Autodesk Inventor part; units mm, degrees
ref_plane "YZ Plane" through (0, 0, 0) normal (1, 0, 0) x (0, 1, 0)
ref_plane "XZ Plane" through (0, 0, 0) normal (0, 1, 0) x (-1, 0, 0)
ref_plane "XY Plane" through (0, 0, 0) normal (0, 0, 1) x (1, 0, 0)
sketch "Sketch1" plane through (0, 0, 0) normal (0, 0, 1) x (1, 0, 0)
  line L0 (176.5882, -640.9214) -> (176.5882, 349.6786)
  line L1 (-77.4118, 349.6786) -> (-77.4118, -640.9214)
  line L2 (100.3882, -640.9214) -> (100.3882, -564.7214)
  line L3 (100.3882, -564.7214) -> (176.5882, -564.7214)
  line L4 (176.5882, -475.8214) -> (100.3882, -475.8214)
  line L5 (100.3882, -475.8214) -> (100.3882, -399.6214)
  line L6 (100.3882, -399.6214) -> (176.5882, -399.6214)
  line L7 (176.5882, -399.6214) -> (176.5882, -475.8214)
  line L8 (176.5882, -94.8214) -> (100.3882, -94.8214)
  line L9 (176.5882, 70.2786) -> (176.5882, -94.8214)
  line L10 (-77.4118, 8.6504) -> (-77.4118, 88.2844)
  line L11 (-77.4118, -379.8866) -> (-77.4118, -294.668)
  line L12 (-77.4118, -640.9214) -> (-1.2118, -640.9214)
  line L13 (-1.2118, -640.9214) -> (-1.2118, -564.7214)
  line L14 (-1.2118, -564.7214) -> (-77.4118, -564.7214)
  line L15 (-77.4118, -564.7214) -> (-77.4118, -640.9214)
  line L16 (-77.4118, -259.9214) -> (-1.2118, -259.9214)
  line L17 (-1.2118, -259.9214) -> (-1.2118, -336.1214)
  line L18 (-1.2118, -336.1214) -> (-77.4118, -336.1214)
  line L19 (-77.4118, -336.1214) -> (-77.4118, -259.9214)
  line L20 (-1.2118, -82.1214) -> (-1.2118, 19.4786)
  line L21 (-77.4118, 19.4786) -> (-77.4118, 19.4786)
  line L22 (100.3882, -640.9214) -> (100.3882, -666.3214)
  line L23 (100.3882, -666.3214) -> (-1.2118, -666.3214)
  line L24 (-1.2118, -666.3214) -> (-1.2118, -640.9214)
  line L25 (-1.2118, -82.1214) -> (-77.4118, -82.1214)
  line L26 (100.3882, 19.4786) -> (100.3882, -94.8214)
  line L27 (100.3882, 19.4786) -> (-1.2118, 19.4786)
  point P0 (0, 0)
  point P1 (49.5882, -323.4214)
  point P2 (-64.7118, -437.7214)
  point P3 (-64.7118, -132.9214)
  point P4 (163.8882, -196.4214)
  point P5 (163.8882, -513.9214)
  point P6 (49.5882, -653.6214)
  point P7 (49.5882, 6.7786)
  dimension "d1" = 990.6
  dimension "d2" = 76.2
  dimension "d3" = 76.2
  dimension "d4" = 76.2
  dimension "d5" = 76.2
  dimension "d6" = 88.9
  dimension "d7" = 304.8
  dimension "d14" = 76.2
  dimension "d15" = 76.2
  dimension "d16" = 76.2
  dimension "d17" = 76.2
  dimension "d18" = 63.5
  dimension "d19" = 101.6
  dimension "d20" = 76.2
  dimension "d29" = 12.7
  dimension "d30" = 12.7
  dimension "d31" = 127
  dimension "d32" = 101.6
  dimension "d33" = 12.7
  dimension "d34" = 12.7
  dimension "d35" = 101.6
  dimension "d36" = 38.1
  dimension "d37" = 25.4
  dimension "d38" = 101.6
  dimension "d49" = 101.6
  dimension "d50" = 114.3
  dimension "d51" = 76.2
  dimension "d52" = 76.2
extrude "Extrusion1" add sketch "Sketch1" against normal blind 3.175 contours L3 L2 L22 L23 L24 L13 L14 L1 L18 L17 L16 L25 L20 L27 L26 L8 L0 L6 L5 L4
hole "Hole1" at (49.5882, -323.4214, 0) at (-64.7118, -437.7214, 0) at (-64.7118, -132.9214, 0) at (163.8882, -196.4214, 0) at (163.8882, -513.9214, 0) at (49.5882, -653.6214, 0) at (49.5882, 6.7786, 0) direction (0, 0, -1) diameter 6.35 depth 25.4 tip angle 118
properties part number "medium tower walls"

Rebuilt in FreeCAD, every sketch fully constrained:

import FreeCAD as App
import Part
import Sketcher
from FreeCAD import Vector
Q = App.Units.Quantity


def add_polygon(sketch, points):
    """Adds a closed chain of lines whose ends are joined by coincident constraints."""
    first, n = sketch.GeometryCount, len(points)
    for a, b in zip(points, points[1:] + points[:1]):
        sketch.addGeometry(Part.LineSegment(App.Vector(*a, 0), App.Vector(*b, 0)), False)
    for i in range(n):
        sketch.addConstraint(Sketcher.Constraint("Coincident", first + i, 2, first + (i + 1) % n, 1))

doc = App.newDocument("Part")
body = doc.addObject("PartDesign::Body", "Body")

sketch1 = doc.addObject("Sketcher::SketchObject", "Sketch")
body.addObject(sketch1)
sketch1.AttachmentSupport = (doc.XY_Plane, [""])
sketch1.MapMode = "FlatFace"
add_polygon(sketch1, [(100, -565), (177, -565), (177, -476), (100, -476), (100, -400), (177, -400), (177, -95), (100, -95), (100, 19), (-1, 19), (-1, -82), (-77, -82), (-77, -260), (-1, -260), (-1, -336), (-77, -336), (-77, -565), (-1, -565), (-1, -666), (100, -666)])
sketch1.addConstraint([
    Sketcher.Constraint("Horizontal", 0),
    Sketcher.Constraint("Vertical", 1),
    Sketcher.Constraint("Horizontal", 2),
    Sketcher.Constraint("Vertical", 3),
    Sketcher.Constraint("Horizontal", 4),
    Sketcher.Constraint("Vertical", 5),
    Sketcher.Constraint("Horizontal", 6),
    Sketcher.Constraint("Vertical", 7),
    Sketcher.Constraint("Horizontal", 8),
    Sketcher.Constraint("Vertical", 9),
    Sketcher.Constraint("Horizontal", 10),
    Sketcher.Constraint("Vertical", 11),
    Sketcher.Constraint("Horizontal", 12),
    Sketcher.Constraint("Vertical", 13),
    Sketcher.Constraint("Horizontal", 14),
    Sketcher.Constraint("Vertical", 15),
    Sketcher.Constraint("Horizontal", 16),
    Sketcher.Constraint("Vertical", 17),
    Sketcher.Constraint("Horizontal", 18),
    Sketcher.Constraint("Vertical", 19),
    Sketcher.Constraint("Horizontal", 0, 2, 15, 2),
    Sketcher.Constraint("Vertical", 1, 2, 4, 2),
    Sketcher.Constraint("Vertical", 3, 2, 6, 2),
    Sketcher.Constraint("Vertical", 9, 2, 12, 2),
    Sketcher.Constraint("Vertical", 11, 2, 14, 2),
    Sketcher.Constraint("Vertical", 13, 2, 16, 2),
    Sketcher.Constraint("Vertical", 7, 2, 18, 2),
    Sketcher.Constraint("Equal", 6, 10),
    Sketcher.Constraint("Equal", 16, 3),
    Sketcher.Constraint("Equal", 18, 9),
    Sketcher.Constraint("Equal", 3, 13),
    Sketcher.Constraint("Equal", 9, 17),
    Sketcher.Constraint("DistanceX", 0, 1, 0, 2, Q("3 in")),
    Sketcher.Constraint("DistanceX", 8, 2, 8, 1, Q("4 in")),
    Sketcher.Constraint("DistanceY", 5, 1, 5, 2, Q("12 in")),
    Sketcher.Constraint("DistanceY", 1, 1, 1, 2, Q("3.5 in")),
    Sketcher.Constraint("DistanceY", 7, 1, 7, 2, Q("4.5 in")),
    Sketcher.Constraint("DistanceY", 3, 2, 13, 2, Q("2.5 in")),
    Sketcher.Constraint("DistanceX", -1, 1, 0, 2, Q("6.9523 in")),
    Sketcher.Constraint("DistanceY", 0, 2, -1, 1, Q("564.7214 mm")),
])
pad1 = doc.addObject("PartDesign::Pad", "Pad")
body.addObject(pad1)
pad1.Profile = sketch1
pad1.Length = Q("0.125 in")
pad1.Reversed = True

sketch2 = doc.addObject("Sketcher::SketchObject", "Sketch001")
body.addObject(sketch2)
sketch2.AttachmentSupport = (doc.XY_Plane, [""])
sketch2.MapMode = "FlatFace"
sketch2.addGeometry([
    Part.Circle(Vector(49.6, -323.4, 0), Vector(0, 0, 1), 3.2),
    Part.Circle(Vector(-64.7, -437.7, 0), Vector(0, 0, 1), 3.2),
    Part.Circle(Vector(-64.7, -132.9, 0), Vector(0, 0, 1), 3.2),
    Part.Circle(Vector(163.9, -196.4, 0), Vector(0, 0, 1), 3.2),
    Part.Circle(Vector(163.9, -513.9, 0), Vector(0, 0, 1), 3.2),
    Part.Circle(Vector(49.6, -653.6, 0), Vector(0, 0, 1), 3.2),
    Part.Circle(Vector(49.6, 6.8, 0), Vector(0, 0, 1), 3.2),
], False)
sketch2.addConstraint([
    Sketcher.Constraint("Equal", 0, 1),
    Sketcher.Constraint("Equal", 1, 2),
    Sketcher.Constraint("Equal", 2, 3),
    Sketcher.Constraint("Equal", 3, 4),
    Sketcher.Constraint("Equal", 4, 5),
    Sketcher.Constraint("Equal", 5, 6),
    Sketcher.Constraint("Vertical", 1, 3, 2, 3),
    Sketcher.Constraint("Vertical", 3, 3, 4, 3),
    Sketcher.Constraint("Vertical", 0, 3, 5, 3),
    Sketcher.Constraint("Vertical", 5, 3, 6, 3),
    Sketcher.Constraint("Diameter", 0, Q("0.25 in")),
    Sketcher.Constraint("DistanceY", 1, 3, 2, 3, Q("12 in")),
    Sketcher.Constraint("DistanceY", 0, 3, 3, 3, Q("5 in")),
    Sketcher.Constraint("DistanceX", 2, 3, 3, 3, Q("9 in")),
    Sketcher.Constraint("DistanceY", 4, 3, 1, 3, Q("3 in")),
    Sketcher.Constraint("DistanceY", 5, 3, 0, 3, Q("13 in")),
    Sketcher.Constraint("DistanceY", 3, 3, 6, 3, Q("8 in")),
    Sketcher.Constraint("DistanceX", 1, 3, 0, 3, Q("4.5 in")),
    Sketcher.Constraint("DistanceY", 1, 3, 0, 3, Q("4.5 in")),
    Sketcher.Constraint("DistanceX", -1, 1, 0, 3, Q("1.9523 in")),
    Sketcher.Constraint("DistanceY", 0, 3, -1, 1, Q("323.4214 mm")),
])
doc.recompute()
hole = doc.addObject("PartDesign::Hole", "Hole")
body.addObject(hole)
hole.Profile = sketch2
hole.ThreadType = "None"
hole.Diameter = Q("0.25 in")
hole.DepthType = "Dimension"
hole.Depth = Q("1 in")
hole.DrillPoint = "Angled"
hole.DrillPointAngle = 118

doc.recompute()
